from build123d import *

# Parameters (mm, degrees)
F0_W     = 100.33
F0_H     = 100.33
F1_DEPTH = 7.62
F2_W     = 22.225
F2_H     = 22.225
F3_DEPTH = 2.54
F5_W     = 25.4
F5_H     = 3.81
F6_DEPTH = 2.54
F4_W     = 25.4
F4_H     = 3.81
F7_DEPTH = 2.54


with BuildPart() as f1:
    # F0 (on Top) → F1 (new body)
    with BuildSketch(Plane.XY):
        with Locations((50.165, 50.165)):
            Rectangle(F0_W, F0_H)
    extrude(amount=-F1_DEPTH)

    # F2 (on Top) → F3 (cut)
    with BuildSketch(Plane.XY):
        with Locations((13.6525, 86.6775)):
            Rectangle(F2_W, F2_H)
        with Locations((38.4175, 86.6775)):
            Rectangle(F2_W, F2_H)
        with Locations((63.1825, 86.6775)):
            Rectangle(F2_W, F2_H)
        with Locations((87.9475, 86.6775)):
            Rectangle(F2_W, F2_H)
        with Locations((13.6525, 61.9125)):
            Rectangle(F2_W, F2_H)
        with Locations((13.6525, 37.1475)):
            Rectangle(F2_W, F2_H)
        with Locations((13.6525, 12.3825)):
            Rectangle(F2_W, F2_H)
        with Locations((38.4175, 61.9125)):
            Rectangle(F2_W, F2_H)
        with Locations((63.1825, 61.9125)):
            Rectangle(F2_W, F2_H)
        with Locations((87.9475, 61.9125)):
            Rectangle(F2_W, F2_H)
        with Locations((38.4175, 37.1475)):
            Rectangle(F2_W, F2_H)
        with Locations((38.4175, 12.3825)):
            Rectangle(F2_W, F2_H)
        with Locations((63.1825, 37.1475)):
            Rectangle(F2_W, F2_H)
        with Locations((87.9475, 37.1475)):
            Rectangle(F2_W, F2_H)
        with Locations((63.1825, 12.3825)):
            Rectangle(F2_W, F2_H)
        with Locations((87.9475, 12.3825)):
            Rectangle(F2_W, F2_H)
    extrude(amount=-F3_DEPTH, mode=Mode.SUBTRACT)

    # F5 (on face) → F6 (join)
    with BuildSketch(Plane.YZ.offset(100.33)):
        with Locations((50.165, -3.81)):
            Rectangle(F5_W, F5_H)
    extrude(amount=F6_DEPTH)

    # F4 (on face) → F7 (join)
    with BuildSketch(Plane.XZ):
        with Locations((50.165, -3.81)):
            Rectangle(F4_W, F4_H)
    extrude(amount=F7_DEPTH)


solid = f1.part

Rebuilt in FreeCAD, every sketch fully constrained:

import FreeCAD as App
import Part
import Sketcher
Q = App.Units.Quantity


def add_polygon(sketch, points):
    """Adds a closed chain of lines whose ends are joined by coincident constraints."""
    first, n = sketch.GeometryCount, len(points)
    for a, b in zip(points, points[1:] + points[:1]):
        sketch.addGeometry(Part.LineSegment(App.Vector(*a, 0), App.Vector(*b, 0)), False)
    for i in range(n):
        sketch.addConstraint(Sketcher.Constraint("Coincident", first + i, 2, first + (i + 1) % n, 1))

doc = App.newDocument("Part")
params = doc.addObject("Spreadsheet::Sheet", "Params")
for row, (alias, value) in enumerate([
    ("sketch1_width", "3.95 in"),
    ("pad1_length", "0.3 in"),
    ("sketch2_width", "0.875 in"),
    ("pocket1_length", "0.1 in"),
    ("sketch3_width", "1 in"),
    ("sketch3_height", "0.15 in"),
    ("pad2_length", "0.1 in"),
    ("sketch4_width", "1 in"),
    ("sketch4_height", "0.15 in"),
    ("pad3_length", "0.1 in"),
], start=1):
    params.set(f"A{row}", alias)
    params.set(f"B{row}", "=" + value)
    params.setAlias(f"B{row}", alias)

body = doc.addObject("PartDesign::Body", "Body")

# Sketch on XY plane
sketch1 = doc.addObject("Sketcher::SketchObject", "Sketch")
body.addObject(sketch1)
sketch1.AttachmentSupport = (doc.XY_Plane, [""])
sketch1.MapMode = "FlatFace"
add_polygon(sketch1, [(0, 100), (0, 0), (100, 0), (100, 100)])  # lines 0-3
sketch1.addConstraint([
    Sketcher.Constraint("Vertical", 0),
    Sketcher.Constraint("Horizontal", 1),
    Sketcher.Constraint("Vertical", 2),
    Sketcher.Constraint("Horizontal", 3),
    Sketcher.Constraint("Coincident", 0, 2, -1, 1),
    Sketcher.Constraint("Equal", 3, 0),
    Sketcher.Constraint("DistanceX", 1, 1, 1, 2, Q("3.95 in")),
])
sketch1.setExpression("Constraints[10]", "Params.sketch1_width")
pad1 = doc.addObject("PartDesign::Pad", "Pad")
body.addObject(pad1)
pad1.Profile = sketch1
pad1.setExpression("Length", "Params.pad1_length")
pad1.Reversed = True

# Sketch on XY plane
sketch2 = doc.addObject("Sketcher::SketchObject", "Sketch001")
body.addObject(sketch2)
sketch2.AttachmentSupport = (doc.XY_Plane, [""])
sketch2.MapMode = "FlatFace"
add_polygon(sketch2, [(3, 98), (3, 76), (25, 76), (25, 98)])  # lines 0-3
add_polygon(sketch2, [(27, 98), (27, 76), (50, 76), (50, 98)])  # lines 4-7
add_polygon(sketch2, [(52, 98), (52, 76), (74, 76), (74, 98)])  # lines 8-11
add_polygon(sketch2, [(77, 98), (77, 76), (99, 76), (99, 98)])  # lines 12-15
add_polygon(sketch2, [(3, 73), (3, 51), (25, 51), (25, 73)])  # lines 16-19
add_polygon(sketch2, [(3, 48), (3, 26), (25, 26), (25, 48)])  # lines 20-23
add_polygon(sketch2, [(3, 23), (3, 1), (25, 1), (25, 23)])  # lines 24-27
add_polygon(sketch2, [(27, 73), (27, 51), (50, 51), (50, 73)])  # lines 28-31
add_polygon(sketch2, [(52, 73), (52, 51), (74, 51), (74, 73)])  # lines 32-35
add_polygon(sketch2, [(77, 73), (77, 51), (99, 51), (99, 73)])  # lines 36-39
add_polygon(sketch2, [(27, 48), (27, 26), (50, 26), (50, 48)])  # lines 40-43
add_polygon(sketch2, [(27, 23), (27, 1), (50, 1), (50, 23)])  # lines 44-47
add_polygon(sketch2, [(52, 48), (52, 26), (74, 26), (74, 48)])  # lines 48-51
add_polygon(sketch2, [(77, 48), (77, 26), (99, 26), (99, 48)])  # lines 52-55
add_polygon(sketch2, [(52, 23), (52, 1), (74, 1), (74, 23)])  # lines 56-59
add_polygon(sketch2, [(77, 23), (77, 1), (99, 1), (99, 23)])  # lines 60-63
sketch2.addConstraint([
    Sketcher.Constraint("Vertical", 0),
    Sketcher.Constraint("Horizontal", 1),
    Sketcher.Constraint("Vertical", 2),
    Sketcher.Constraint("Horizontal", 3),
    Sketcher.Constraint("Vertical", 4),
    Sketcher.Constraint("Horizontal", 5),
    Sketcher.Constraint("Vertical", 6),
    Sketcher.Constraint("Horizontal", 7),
    Sketcher.Constraint("Vertical", 8),
    Sketcher.Constraint("Horizontal", 9),
    Sketcher.Constraint("Vertical", 10),
    Sketcher.Constraint("Horizontal", 11),
    Sketcher.Constraint("Vertical", 12),
    Sketcher.Constraint("Horizontal", 13),
    Sketcher.Constraint("Vertical", 14),
    Sketcher.Constraint("Horizontal", 15),
    Sketcher.Constraint("Vertical", 16),
    Sketcher.Constraint("Horizontal", 17),
    Sketcher.Constraint("Vertical", 18),
    Sketcher.Constraint("Horizontal", 19),
    Sketcher.Constraint("Vertical", 20),
    Sketcher.Constraint("Horizontal", 21),
    Sketcher.Constraint("Vertical", 22),
    Sketcher.Constraint("Horizontal", 23),
    Sketcher.Constraint("Vertical", 24),
    Sketcher.Constraint("Horizontal", 25),
    Sketcher.Constraint("Vertical", 26),
    Sketcher.Constraint("Horizontal", 27),
    Sketcher.Constraint("Vertical", 28),
    Sketcher.Constraint("Horizontal", 29),
    Sketcher.Constraint("Vertical", 30),
    Sketcher.Constraint("Horizontal", 31),
    Sketcher.Constraint("Vertical", 32),
    Sketcher.Constraint("Horizontal", 33),
    Sketcher.Constraint("Vertical", 34),
    Sketcher.Constraint("Horizontal", 35),
    Sketcher.Constraint("Vertical", 36),
    Sketcher.Constraint("Horizontal", 37),
    Sketcher.Constraint("Vertical", 38),
    Sketcher.Constraint("Horizontal", 39),
    Sketcher.Constraint("Vertical", 40),
    Sketcher.Constraint("Horizontal", 41),
    Sketcher.Constraint("Vertical", 42),
    Sketcher.Constraint("Horizontal", 43),
    Sketcher.Constraint("Vertical", 44),
    Sketcher.Constraint("Horizontal", 45),
    Sketcher.Constraint("Vertical", 46),
    Sketcher.Constraint("Horizontal", 47),
    Sketcher.Constraint("Vertical", 48),
    Sketcher.Constraint("Horizontal", 49),
    Sketcher.Constraint("Vertical", 50),
    Sketcher.Constraint("Horizontal", 51),
    Sketcher.Constraint("Vertical", 52),
    Sketcher.Constraint("Horizontal", 53),
    Sketcher.Constraint("Vertical", 54),
    Sketcher.Constraint("Horizontal", 55),
    Sketcher.Constraint("Vertical", 56),
    Sketcher.Constraint("Horizontal", 57),
    Sketcher.Constraint("Vertical", 58),
    Sketcher.Constraint("Horizontal", 59),
    Sketcher.Constraint("Vertical", 60),
    Sketcher.Constraint("Horizontal", 61),
    Sketcher.Constraint("Vertical", 62),
    Sketcher.Constraint("Horizontal", 63),
    Sketcher.Constraint("Horizontal", 1, 2, 4, 2),
    Sketcher.Constraint("Horizontal", 3, 2, 6, 2),
    Sketcher.Constraint("Horizontal", 5, 2, 8, 2),
    Sketcher.Constraint("Horizontal", 7, 2, 10, 2),
    Sketcher.Constraint("Horizontal", 9, 2, 12, 2),
    Sketcher.Constraint("Horizontal", 11, 2, 14, 2),
    Sketcher.Constraint("Horizontal", 17, 2, 28, 2),
    Sketcher.Constraint("Horizontal", 19, 2, 30, 2),
    Sketcher.Constraint("Horizontal", 29, 2, 32, 2),
    Sketcher.Constraint("Horizontal", 31, 2, 34, 2),
    Sketcher.Constraint("Horizontal", 33, 2, 36, 2),
    Sketcher.Constraint("Horizontal", 35, 2, 38, 2),
    Sketcher.Constraint("Horizontal", 21, 2, 40, 2),
    Sketcher.Constraint("Horizontal", 23, 2, 42, 2),
    Sketcher.Constraint("Horizontal", 25, 2, 44, 2),
    Sketcher.Constraint("Horizontal", 27, 2, 46, 2),
    Sketcher.Constraint("Horizontal", 41, 2, 48, 2),
    Sketcher.Constraint("Horizontal", 43, 2, 50, 2),
    Sketcher.Constraint("Horizontal", 49, 2, 52, 2),
    Sketcher.Constraint("Horizontal", 51, 2, 54, 2),
    Sketcher.Constraint("Horizontal", 45, 2, 56, 2),
    Sketcher.Constraint("Horizontal", 47, 2, 58, 2),
    Sketcher.Constraint("Horizontal", 57, 2, 60, 2),
    Sketcher.Constraint("Horizontal", 59, 2, 62, 2),
    Sketcher.Constraint("Vertical", 3, 2, 16, 2),
    Sketcher.Constraint("Vertical", 2, 2, 17, 2),
    Sketcher.Constraint("Vertical", 19, 2, 20, 2),
    Sketcher.Constraint("Vertical", 18, 2, 21, 2),
    Sketcher.Constraint("Vertical", 23, 2, 24, 2),
    Sketcher.Constraint("Vertical", 22, 2, 25, 2),
    Sketcher.Constraint("Vertical", 7, 2, 28, 2),
    Sketcher.Constraint("Vertical", 6, 2, 29, 2),
    Sketcher.Constraint("Vertical", 11, 2, 32, 2),
    Sketcher.Constraint("Vertical", 10, 2, 33, 2),
    Sketcher.Constraint("Vertical", 15, 2, 36, 2),
    Sketcher.Constraint("Vertical", 14, 2, 37, 2),
    Sketcher.Constraint("Vertical", 31, 2, 40, 2),
    Sketcher.Constraint("Vertical", 30, 2, 41, 2),
    Sketcher.Constraint("Vertical", 43, 2, 44, 2),
    Sketcher.Constraint("Vertical", 42, 2, 45, 2),
    Sketcher.Constraint("Vertical", 35, 2, 48, 2),
    Sketcher.Constraint("Vertical", 34, 2, 49, 2),
    Sketcher.Constraint("Vertical", 39, 2, 52, 2),
    Sketcher.Constraint("Vertical", 38, 2, 53, 2),
    Sketcher.Constraint("Vertical", 51, 2, 56, 2),
    Sketcher.Constraint("Vertical", 50, 2, 57, 2),
    Sketcher.Constraint("Vertical", 55, 2, 60, 2),
    Sketcher.Constraint("Vertical", 54, 2, 61, 2),
    Sketcher.Constraint("Equal", 3, 5),
    Sketcher.Constraint("Equal", 7, 9),
    Sketcher.Constraint("Equal", 11, 13),
    Sketcher.Constraint("Equal", 63, 0),
    Sketcher.Constraint("Equal", 14, 16),
    Sketcher.Constraint("Equal", 18, 20),
    Sketcher.Constraint("Equal", 22, 24),
    Sketcher.Constraint("DistanceY", -1, 1, 16, 2, Q("2 in")),
    Sketcher.Constraint("DistanceX", -1, 1, 0, 2, Q("0.1 in")),
    Sketcher.Constraint("DistanceX", -1, 1, 13, 2, Q("3.9 in")),
    Sketcher.Constraint("DistanceY", -1, 1, 22, 2, Q("1.9 in")),
    Sketcher.Constraint("DistanceX", 1, 1, 1, 2, Q("0.875 in")),
    Sketcher.Constraint("DistanceY", -1, 1, 2, 2, Q("3.85 in")),
    Sketcher.Constraint("DistanceX", -1, 1, 5, 2, Q("1.95 in")),
    Sketcher.Constraint("DistanceX", -1, 1, 8, 2, Q("2.05 in")),
    Sketcher.Constraint("DistanceY", -1, 1, 24, 2, Q("0.05 in")),
])
sketch2.setExpression("Constraints[187]", "Params.sketch2_width")
pocket1 = doc.addObject("PartDesign::Pocket", "Pocket")
body.addObject(pocket1)
pocket1.Profile = sketch2
pocket1.setExpression("Length", "Params.pocket1_length")

# Sketch on YZ plane
sketch3 = doc.addObject("Sketcher::SketchObject", "Sketch002")
body.addObject(sketch3)
sketch3.AttachmentSupport = (doc.YZ_Plane, [""])
sketch3.MapMode = "FlatFace"
sketch3.AttachmentOffset = App.Placement(App.Vector(0, 0, 3.95 * 25.4), App.Rotation())
add_polygon(sketch3, [(37.5, -1.9), (37.5, -5.7), (62.9, -5.7), (62.9, -1.9)])  # lines 0-3
sketch3.addConstraint([
    Sketcher.Constraint("Vertical", 0),
    Sketcher.Constraint("Horizontal", 1),
    Sketcher.Constraint("Vertical", 2),
    Sketcher.Constraint("Horizontal", 3),
    Sketcher.Constraint("DistanceX", 1, 1, 1, 2, Q("1 in")),
    Sketcher.Constraint("DistanceY", 0, 2, 0, 1, Q("0.15 in")),
    Sketcher.Constraint("DistanceX", -1, 1, 0, 2, Q("1.475 in")),
    Sketcher.Constraint("DistanceY", 0, 2, -1, 1, Q("0.225 in")),
])
sketch3.setExpression("Constraints[8]", "Params.sketch3_width")
sketch3.setExpression("Constraints[9]", "Params.sketch3_height")
pad2 = doc.addObject("PartDesign::Pad", "Pad001")
body.addObject(pad2)
pad2.Profile = sketch3
pad2.setExpression("Length", "Params.pad2_length")

# Sketch on XZ plane
sketch4 = doc.addObject("Sketcher::SketchObject", "Sketch003")
body.addObject(sketch4)
sketch4.AttachmentSupport = (doc.XZ_Plane, [""])
sketch4.MapMode = "FlatFace"
add_polygon(sketch4, [(37.5, -1.9), (37.5, -5.7), (62.9, -5.7), (62.9, -1.9)])  # lines 0-3
sketch4.addConstraint([
    Sketcher.Constraint("Vertical", 0),
    Sketcher.Constraint("Horizontal", 1),
    Sketcher.Constraint("Vertical", 2),
    Sketcher.Constraint("Horizontal", 3),
    Sketcher.Constraint("DistanceX", 1, 1, 1, 2, Q("1 in")),
    Sketcher.Constraint("DistanceY", 0, 2, 0, 1, Q("0.15 in")),
    Sketcher.Constraint("DistanceX", -1, 1, 0, 2, Q("1.475 in")),
    Sketcher.Constraint("DistanceY", 0, 2, -1, 1, Q("0.225 in")),
])
sketch4.setExpression("Constraints[8]", "Params.sketch4_width")
sketch4.setExpression("Constraints[9]", "Params.sketch4_height")
pad3 = doc.addObject("PartDesign::Pad", "Pad002")
body.addObject(pad3)
pad3.Profile = sketch4
pad3.setExpression("Length", "Params.pad3_length")

doc.recompute()
